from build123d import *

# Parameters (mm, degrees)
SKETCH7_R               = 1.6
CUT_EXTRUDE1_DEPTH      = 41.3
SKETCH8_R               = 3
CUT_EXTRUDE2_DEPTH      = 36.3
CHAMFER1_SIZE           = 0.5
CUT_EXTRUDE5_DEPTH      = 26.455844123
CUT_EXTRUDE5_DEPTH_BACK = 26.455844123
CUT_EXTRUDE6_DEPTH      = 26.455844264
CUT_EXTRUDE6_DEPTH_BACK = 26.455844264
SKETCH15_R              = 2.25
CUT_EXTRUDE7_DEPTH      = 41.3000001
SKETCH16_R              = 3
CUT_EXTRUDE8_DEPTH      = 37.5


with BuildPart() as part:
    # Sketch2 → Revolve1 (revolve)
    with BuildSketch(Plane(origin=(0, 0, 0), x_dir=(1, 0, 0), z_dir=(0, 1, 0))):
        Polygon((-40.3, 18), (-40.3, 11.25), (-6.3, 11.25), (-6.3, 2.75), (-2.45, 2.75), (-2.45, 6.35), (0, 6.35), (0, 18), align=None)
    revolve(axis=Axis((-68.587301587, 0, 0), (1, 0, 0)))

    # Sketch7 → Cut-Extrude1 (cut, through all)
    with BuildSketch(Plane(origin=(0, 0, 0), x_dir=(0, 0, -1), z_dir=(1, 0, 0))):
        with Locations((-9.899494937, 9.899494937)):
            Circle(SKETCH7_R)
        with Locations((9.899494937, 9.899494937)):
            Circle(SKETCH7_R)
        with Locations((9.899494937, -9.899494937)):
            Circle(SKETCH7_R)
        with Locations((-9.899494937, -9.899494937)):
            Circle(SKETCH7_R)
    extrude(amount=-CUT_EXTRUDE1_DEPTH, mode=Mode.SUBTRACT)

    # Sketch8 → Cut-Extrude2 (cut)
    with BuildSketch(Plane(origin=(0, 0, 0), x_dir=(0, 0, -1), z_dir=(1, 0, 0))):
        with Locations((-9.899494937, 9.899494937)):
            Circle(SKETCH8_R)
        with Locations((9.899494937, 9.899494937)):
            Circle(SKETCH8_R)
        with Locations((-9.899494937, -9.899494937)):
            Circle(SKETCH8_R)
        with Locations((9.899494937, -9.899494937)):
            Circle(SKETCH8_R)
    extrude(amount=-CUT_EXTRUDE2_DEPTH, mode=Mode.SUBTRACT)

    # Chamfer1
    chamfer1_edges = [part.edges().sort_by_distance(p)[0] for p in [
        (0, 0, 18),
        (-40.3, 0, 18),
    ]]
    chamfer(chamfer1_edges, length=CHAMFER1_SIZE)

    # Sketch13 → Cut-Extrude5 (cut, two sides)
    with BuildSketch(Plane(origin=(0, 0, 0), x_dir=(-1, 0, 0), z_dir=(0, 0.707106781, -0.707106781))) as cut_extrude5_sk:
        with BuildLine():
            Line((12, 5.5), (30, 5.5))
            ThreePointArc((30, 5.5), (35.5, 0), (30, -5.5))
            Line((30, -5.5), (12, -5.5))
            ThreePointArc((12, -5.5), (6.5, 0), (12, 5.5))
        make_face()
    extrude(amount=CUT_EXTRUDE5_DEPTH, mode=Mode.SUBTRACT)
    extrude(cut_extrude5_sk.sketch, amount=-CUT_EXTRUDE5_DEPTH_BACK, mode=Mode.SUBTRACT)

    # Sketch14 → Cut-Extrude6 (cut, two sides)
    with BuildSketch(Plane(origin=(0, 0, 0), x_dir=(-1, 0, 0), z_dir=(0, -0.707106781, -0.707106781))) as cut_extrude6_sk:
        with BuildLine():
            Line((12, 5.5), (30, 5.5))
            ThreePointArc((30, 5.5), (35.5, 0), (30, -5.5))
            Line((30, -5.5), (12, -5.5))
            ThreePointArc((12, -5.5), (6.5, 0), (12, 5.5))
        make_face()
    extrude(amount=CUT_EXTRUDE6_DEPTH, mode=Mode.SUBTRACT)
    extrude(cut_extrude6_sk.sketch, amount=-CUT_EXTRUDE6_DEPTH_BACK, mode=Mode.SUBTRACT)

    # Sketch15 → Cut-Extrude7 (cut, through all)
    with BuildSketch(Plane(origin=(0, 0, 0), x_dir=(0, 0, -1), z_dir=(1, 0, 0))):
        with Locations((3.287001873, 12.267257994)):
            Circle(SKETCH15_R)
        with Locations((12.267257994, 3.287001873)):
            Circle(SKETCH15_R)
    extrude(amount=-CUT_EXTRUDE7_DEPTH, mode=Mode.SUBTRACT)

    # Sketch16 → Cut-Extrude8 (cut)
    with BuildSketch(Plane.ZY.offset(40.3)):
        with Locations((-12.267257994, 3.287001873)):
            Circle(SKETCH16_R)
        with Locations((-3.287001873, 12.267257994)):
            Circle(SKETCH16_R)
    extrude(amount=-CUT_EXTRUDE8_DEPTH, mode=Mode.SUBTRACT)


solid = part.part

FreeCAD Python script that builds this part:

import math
import FreeCAD as App
import Part
import Sketcher

V = App.Vector
Q = App.Units.Quantity


def edges_at(feature, points):
    """Names of the edges that pass closest to the given points."""
    edges = feature.Shape.Edges
    near = lambda p: min(range(len(edges)), key=lambda i: edges[i].distToShape(Part.Vertex(*p))[0])
    return sorted({f"Edge{near(p) + 1}" for p in points})


def add_polygon(sketch, points):
    """Adds a closed chain of lines whose ends are joined by coincident constraints."""
    first, n = sketch.GeometryCount, len(points)
    for a, b in zip(points, points[1:] + points[:1]):
        sketch.addGeometry(Part.LineSegment(App.Vector(*a, 0), App.Vector(*b, 0)), False)
    for i in range(n):
        sketch.addConstraint(Sketcher.Constraint("Coincident", first + i, 2, first + (i + 1) % n, 1))

doc = App.newDocument("Part")
body = doc.addObject("PartDesign::Body", "Body")

# Sketch on XZ plane
sketch1 = body.newObject("Sketcher::SketchObject", "Sketch")
sketch1.AttachmentSupport = (doc.getObject("XZ_Plane"), [""])
sketch1.MapMode = "FlatFace"
add_polygon(sketch1, [(-40.3, -18), (-40.3, -11.25), (-6.3, -11.25), (-6.3, -2.75), (-2.45, -2.75), (-2.45, -6.35), (0, -6.35), (0, -18)])  # lines 0-7
sketch1.addConstraint([
    Sketcher.Constraint("Vertical", 0),
    Sketcher.Constraint("Horizontal", 1),
    Sketcher.Constraint("Vertical", 2),
    Sketcher.Constraint("Horizontal", 3),
    Sketcher.Constraint("Vertical", 4),
    Sketcher.Constraint("Horizontal", 5),
    Sketcher.Constraint("Vertical", 6),
    Sketcher.Constraint("Horizontal", 7),
    Sketcher.Constraint("PointOnObject", 5, 2, -2),
    Sketcher.Constraint("DistanceX", 1, 1, 1, 2, Q("34 mm")),
    Sketcher.Constraint("DistanceX", 7, 2, 7, 1, Q("40.3 mm")),
    Sketcher.Constraint("DistanceY", 2, 1, 2, 2, Q("8.5 mm")),
    Sketcher.Constraint("DistanceY", 4, 2, 4, 1, Q("3.6 mm")),
    Sketcher.Constraint("DistanceY", 6, 2, -1, 1, Q("18 mm")),
    Sketcher.Constraint("DistanceX", 3, 1, 3, 2, Q("3.85 mm")),
    Sketcher.Constraint("DistanceY", 0, 1, 0, 2, Q("6.75 mm")),
])
revolution = body.newObject("PartDesign::Revolution", "Revolution")
revolution.Profile = sketch1
revolution.ReferenceAxis = (sketch1, ["H_Axis"])
revolution.Angle = 360

# Sketch on YZ plane
sketch2 = body.newObject("Sketcher::SketchObject", "Sketch001")
sketch2.AttachmentSupport = (doc.getObject("YZ_Plane"), [""])
sketch2.MapMode = "FlatFace"
sketch2.addGeometry([
    Part.Circle(V(9.899495, 9.899495, 0), V(0, 0, 1), 1.6),
    Part.Circle(V(9.899495, -9.899495, 0), V(0, 0, 1), 1.6),
    Part.Circle(V(-9.899495, -9.899495, 0), V(0, 0, 1), 1.6),
    Part.Circle(V(-9.899495, 9.899495, 0), V(0, 0, 1), 1.6),
], False)
sketch2.addConstraint([
    Sketcher.Constraint("Equal", 0, 1),
    Sketcher.Constraint("Equal", 1, 2),
    Sketcher.Constraint("Equal", 2, 3),
    Sketcher.Constraint("Symmetric", 0, 3, 2, 3, -1, 1),
    Sketcher.Constraint("Symmetric", 1, 3, 3, 3, -1, 1),
    Sketcher.Constraint("Symmetric", 1, 3, 2, 3, -2),
    Sketcher.Constraint("Diameter", 0, Q("3.2 mm")),
    Sketcher.Constraint("DistanceY", 1, 3, 0, 3, Q("19.79899 mm")),
    Sketcher.Constraint("DistanceX", 2, 3, 1, 3, Q("19.79899 mm")),
])
pocket1 = body.newObject("PartDesign::Pocket", "Pocket")
pocket1.Profile = sketch2
pocket1.Type = "ThroughAll"

# Sketch on YZ plane
sketch3 = body.newObject("Sketcher::SketchObject", "Sketch002")
sketch3.AttachmentSupport = (doc.getObject("YZ_Plane"), [""])
sketch3.MapMode = "FlatFace"
sketch3.addGeometry([
    Part.Circle(V(9.899495, 9.899495, 0), V(0, 0, 1), 3),
    Part.Circle(V(9.899495, -9.899495, 0), V(0, 0, 1), 3),
    Part.Circle(V(-9.899495, 9.899495, 0), V(0, 0, 1), 3),
    Part.Circle(V(-9.899495, -9.899495, 0), V(0, 0, 1), 3),
], False)
sketch3.addConstraint([
    Sketcher.Constraint("Equal", 0, 1),
    Sketcher.Constraint("Equal", 1, 2),
    Sketcher.Constraint("Equal", 2, 3),
    Sketcher.Constraint("Symmetric", 1, 3, 2, 3, -1, 1),
    Sketcher.Constraint("Symmetric", 0, 3, 3, 3, -1, 1),
    Sketcher.Constraint("Symmetric", 0, 3, 2, 3, -2),
    Sketcher.Constraint("Diameter", 0, Q("6 mm")),
    Sketcher.Constraint("DistanceY", 1, 3, 0, 3, Q("19.79899 mm")),
    Sketcher.Constraint("DistanceX", 2, 3, 0, 3, Q("19.79899 mm")),
])
pocket2 = body.newObject("PartDesign::Pocket", "Pocket001")
pocket2.Profile = sketch3
pocket2.Length = 36.3
doc.recompute()

chamfer = body.newObject("PartDesign::Chamfer", "Chamfer")
chamfer.Base = (pocket2, edges_at(pocket2, [(0, 0, 18), (-40.3, 0, 18)]))
chamfer.Size = 0.5

# Sketch on an angled plane
sketch4 = body.newObject("Sketcher::SketchObject", "Sketch003")
sketch4.Placement = App.Placement(V(0, 0, 0), App.Rotation(V(-1, 0, 0), V(0, 0.707106781, 0.707106781), V(0, 0.707106781, -0.707106781), "ZXY"))
sketch4.addGeometry([
    Part.LineSegment(V(30, 5.5, 0), V(12, 5.5, 0)),
    Part.ArcOfCircle(Part.Circle(V(12, 0, 0), V(0, 0, 1), 5.5), math.radians(90), math.radians(270)),
    Part.LineSegment(V(12, -5.5, 0), V(30, -5.5, 0)),
    Part.ArcOfCircle(Part.Circle(V(30, 0, 0), V(0, 0, 1), 5.5), math.radians(-90), math.radians(90)),
], False)
sketch4.addConstraint([
    Sketcher.Constraint("Tangent", 0, 2, 1, 1),
    Sketcher.Constraint("Tangent", 1, 2, 2, 1),
    Sketcher.Constraint("Tangent", 2, 2, 3, 1),
    Sketcher.Constraint("Tangent", 3, 2, 0, 1),
    Sketcher.Constraint("Horizontal", 0),
    Sketcher.Constraint("Horizontal", 2),
    Sketcher.Constraint("PointOnObject", 1, 3, -1),
    Sketcher.Constraint("Radius", 1, Q("5.5 mm")),
    Sketcher.Constraint("DistanceX", 0, 2, 0, 1, Q("18 mm")),
    Sketcher.Constraint("DistanceX", -1, 1, 1, 3, Q("12 mm")),
])
pocket3 = body.newObject("PartDesign::Pocket", "Pocket002")
pocket3.Profile = sketch4
pocket3.Type = "ThroughAll"
pocket3.Midplane = True

# Sketch on an angled plane
sketch5 = body.newObject("Sketcher::SketchObject", "Sketch004")
sketch5.Placement = App.Placement(V(0, 0, 0), App.Rotation(V(-1, 0, 0), V(0, 0.707106781, -0.707106781), V(0, -0.707106781, -0.707106781), "ZXY"))
sketch5.addGeometry([
    Part.LineSegment(V(30, 5.5, 0), V(12, 5.5, 0)),
    Part.ArcOfCircle(Part.Circle(V(12, 0, 0), V(0, 0, 1), 5.5), math.radians(90), math.radians(270)),
    Part.LineSegment(V(12, -5.5, 0), V(30, -5.5, 0)),
    Part.ArcOfCircle(Part.Circle(V(30, 0, 0), V(0, 0, 1), 5.5), math.radians(-90), math.radians(90)),
], False)
sketch5.addConstraint([
    Sketcher.Constraint("Tangent", 0, 2, 1, 1),
    Sketcher.Constraint("Tangent", 1, 2, 2, 1),
    Sketcher.Constraint("Tangent", 2, 2, 3, 1),
    Sketcher.Constraint("Tangent", 3, 2, 0, 1),
    Sketcher.Constraint("Horizontal", 0),
    Sketcher.Constraint("Horizontal", 2),
    Sketcher.Constraint("PointOnObject", 1, 3, -1),
    Sketcher.Constraint("Radius", 1, Q("5.5 mm")),
    Sketcher.Constraint("DistanceX", 0, 2, 0, 1, Q("18 mm")),
    Sketcher.Constraint("DistanceX", -1, 1, 1, 3, Q("12 mm")),
])
pocket4 = body.newObject("PartDesign::Pocket", "Pocket003")
pocket4.Profile = sketch5
pocket4.Type = "ThroughAll"
pocket4.Midplane = True

# Sketch on YZ plane
sketch6 = body.newObject("Sketcher::SketchObject", "Sketch005")
sketch6.AttachmentSupport = (doc.getObject("YZ_Plane"), [""])
sketch6.MapMode = "FlatFace"
sketch6.addGeometry([
    Part.Circle(V(12.267258, -3.287002, 0), V(0, 0, 1), 2.25),
    Part.Circle(V(3.287002, -12.267258, 0), V(0, 0, 1), 2.25),
], False)
sketch6.addConstraint([
    Sketcher.Constraint("Equal", 0, 1),
    Sketcher.Constraint("Diameter", 0, Q("4.5 mm")),
    Sketcher.Constraint("DistanceY", 0, 3, -1, 1, Q("3.287002 mm")),
    Sketcher.Constraint("DistanceX", -1, 1, 1, 3, Q("3.287002 mm")),
    Sketcher.Constraint("DistanceX", -1, 1, 0, 3, Q("12.267258 mm")),
    Sketcher.Constraint("DistanceY", 1, 3, -1, 1, Q("12.267258 mm")),
])
pocket5 = body.newObject("PartDesign::Pocket", "Pocket004")
pocket5.Profile = sketch6
pocket5.Type = "ThroughAll"

# Sketch on YZ plane
sketch7 = body.newObject("Sketcher::SketchObject", "Sketch006")
sketch7.AttachmentSupport = (doc.getObject("YZ_Plane"), [""])
sketch7.MapMode = "FlatFace"
sketch7.AttachmentOffset = App.Placement(V(0, 0, -40.3), App.Rotation())
sketch7.addGeometry([
    Part.Circle(V(3.287002, -12.267258, 0), V(0, 0, 1), 3),
    Part.Circle(V(12.267258, -3.287002, 0), V(0, 0, 1), 3),
], False)
sketch7.addConstraint([
    Sketcher.Constraint("Equal", 0, 1),
    Sketcher.Constraint("Diameter", 0, Q("6 mm")),
    Sketcher.Constraint("DistanceX", -1, 1, 0, 3, Q("3.287002 mm")),
    Sketcher.Constraint("DistanceY", 1, 3, -1, 1, Q("3.287002 mm")),
    Sketcher.Constraint("DistanceY", 0, 3, -1, 1, Q("12.267258 mm")),
    Sketcher.Constraint("DistanceX", -1, 1, 1, 3, Q("12.267258 mm")),
])
pocket6 = body.newObject("PartDesign::Pocket", "Pocket005")
pocket6.Profile = sketch7
pocket6.Length = 37.5
pocket6.Reversed = True

doc.recompute()
